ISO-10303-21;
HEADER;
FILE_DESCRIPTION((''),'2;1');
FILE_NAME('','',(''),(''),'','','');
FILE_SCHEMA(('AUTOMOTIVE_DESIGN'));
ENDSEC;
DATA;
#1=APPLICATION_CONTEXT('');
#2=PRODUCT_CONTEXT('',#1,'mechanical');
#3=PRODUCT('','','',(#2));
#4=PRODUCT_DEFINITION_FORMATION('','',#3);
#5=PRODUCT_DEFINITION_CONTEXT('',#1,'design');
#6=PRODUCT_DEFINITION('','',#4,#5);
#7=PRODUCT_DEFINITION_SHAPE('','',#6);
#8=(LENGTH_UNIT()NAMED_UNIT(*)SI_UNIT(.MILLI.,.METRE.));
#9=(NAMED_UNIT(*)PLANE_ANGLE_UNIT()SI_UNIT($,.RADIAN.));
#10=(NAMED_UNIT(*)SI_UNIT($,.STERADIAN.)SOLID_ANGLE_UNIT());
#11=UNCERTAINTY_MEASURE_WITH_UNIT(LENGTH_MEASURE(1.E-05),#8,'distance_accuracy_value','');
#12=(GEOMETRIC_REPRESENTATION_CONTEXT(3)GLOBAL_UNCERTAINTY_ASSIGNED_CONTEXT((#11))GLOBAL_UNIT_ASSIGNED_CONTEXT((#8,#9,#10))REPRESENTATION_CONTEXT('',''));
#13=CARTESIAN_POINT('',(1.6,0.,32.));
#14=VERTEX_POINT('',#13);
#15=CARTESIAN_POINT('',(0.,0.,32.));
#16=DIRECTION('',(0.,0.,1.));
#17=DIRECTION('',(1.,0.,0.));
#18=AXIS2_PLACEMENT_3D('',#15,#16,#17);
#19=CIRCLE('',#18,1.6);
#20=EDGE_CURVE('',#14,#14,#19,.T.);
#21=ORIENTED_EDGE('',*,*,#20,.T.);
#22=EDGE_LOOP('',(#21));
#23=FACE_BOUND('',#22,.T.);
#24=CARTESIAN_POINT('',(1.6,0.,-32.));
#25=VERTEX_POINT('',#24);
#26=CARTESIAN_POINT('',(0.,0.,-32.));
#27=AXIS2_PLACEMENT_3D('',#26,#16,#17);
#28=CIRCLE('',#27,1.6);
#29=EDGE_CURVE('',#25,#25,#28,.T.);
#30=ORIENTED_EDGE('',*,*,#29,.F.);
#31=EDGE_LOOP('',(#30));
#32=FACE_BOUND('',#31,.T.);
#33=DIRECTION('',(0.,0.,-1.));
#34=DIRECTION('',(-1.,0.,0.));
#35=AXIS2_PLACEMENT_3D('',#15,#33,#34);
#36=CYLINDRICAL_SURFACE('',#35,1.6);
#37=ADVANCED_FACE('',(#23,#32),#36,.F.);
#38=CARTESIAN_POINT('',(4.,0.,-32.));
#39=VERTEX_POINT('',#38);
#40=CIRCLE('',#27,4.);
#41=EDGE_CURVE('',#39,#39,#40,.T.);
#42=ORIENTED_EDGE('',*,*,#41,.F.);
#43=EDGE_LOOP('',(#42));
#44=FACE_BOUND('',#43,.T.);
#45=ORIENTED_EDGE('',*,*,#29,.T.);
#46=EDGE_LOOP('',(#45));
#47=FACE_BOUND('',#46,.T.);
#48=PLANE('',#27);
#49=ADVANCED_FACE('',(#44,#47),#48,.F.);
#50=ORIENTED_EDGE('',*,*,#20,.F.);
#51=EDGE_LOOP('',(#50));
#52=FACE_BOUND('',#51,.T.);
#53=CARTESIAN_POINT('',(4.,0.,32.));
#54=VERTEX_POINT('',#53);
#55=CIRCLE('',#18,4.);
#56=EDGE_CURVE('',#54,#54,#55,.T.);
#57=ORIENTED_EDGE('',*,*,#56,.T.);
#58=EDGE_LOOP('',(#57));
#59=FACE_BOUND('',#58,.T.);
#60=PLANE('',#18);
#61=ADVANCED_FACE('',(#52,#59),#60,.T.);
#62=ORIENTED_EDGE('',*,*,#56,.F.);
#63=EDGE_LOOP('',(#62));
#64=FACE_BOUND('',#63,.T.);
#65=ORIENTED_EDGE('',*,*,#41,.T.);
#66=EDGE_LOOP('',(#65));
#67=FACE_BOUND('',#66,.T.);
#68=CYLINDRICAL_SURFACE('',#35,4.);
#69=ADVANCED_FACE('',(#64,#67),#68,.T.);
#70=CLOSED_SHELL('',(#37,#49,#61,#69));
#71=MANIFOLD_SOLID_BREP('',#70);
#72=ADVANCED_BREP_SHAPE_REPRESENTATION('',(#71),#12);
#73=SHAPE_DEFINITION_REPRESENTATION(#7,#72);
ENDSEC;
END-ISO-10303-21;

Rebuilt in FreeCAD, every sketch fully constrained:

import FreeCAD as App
import Part
import Sketcher
from FreeCAD import Vector
Q = App.Units.Quantity

doc = App.newDocument("Part")
body = doc.addObject("PartDesign::Body", "Body")

sketch1 = doc.addObject("Sketcher::SketchObject", "Sketch")
body.addObject(sketch1)
sketch1.AttachmentSupport = (doc.XY_Plane, [""])
sketch1.MapMode = "FlatFace"
sketch1.addGeometry([
    Part.Circle(Vector(0, 0, 0), Vector(0, 0, 1), 4),
    Part.Circle(Vector(0, 0, 0), Vector(0, 0, 1), 1.6),
], False)
sketch1.addConstraint([
    Sketcher.Constraint("Coincident", 0, 3, -1, 1),
    Sketcher.Constraint("Coincident", 1, 3, -1, 1),
    Sketcher.Constraint("Diameter", 0, Q("8 mm")),
    Sketcher.Constraint("Diameter", 1, Q("3.2 mm")),
])
pad1 = doc.addObject("PartDesign::Pad", "Pad")
body.addObject(pad1)
pad1.Profile = sketch1
pad1.Length = 64
pad1.Midplane = True

doc.recompute()
